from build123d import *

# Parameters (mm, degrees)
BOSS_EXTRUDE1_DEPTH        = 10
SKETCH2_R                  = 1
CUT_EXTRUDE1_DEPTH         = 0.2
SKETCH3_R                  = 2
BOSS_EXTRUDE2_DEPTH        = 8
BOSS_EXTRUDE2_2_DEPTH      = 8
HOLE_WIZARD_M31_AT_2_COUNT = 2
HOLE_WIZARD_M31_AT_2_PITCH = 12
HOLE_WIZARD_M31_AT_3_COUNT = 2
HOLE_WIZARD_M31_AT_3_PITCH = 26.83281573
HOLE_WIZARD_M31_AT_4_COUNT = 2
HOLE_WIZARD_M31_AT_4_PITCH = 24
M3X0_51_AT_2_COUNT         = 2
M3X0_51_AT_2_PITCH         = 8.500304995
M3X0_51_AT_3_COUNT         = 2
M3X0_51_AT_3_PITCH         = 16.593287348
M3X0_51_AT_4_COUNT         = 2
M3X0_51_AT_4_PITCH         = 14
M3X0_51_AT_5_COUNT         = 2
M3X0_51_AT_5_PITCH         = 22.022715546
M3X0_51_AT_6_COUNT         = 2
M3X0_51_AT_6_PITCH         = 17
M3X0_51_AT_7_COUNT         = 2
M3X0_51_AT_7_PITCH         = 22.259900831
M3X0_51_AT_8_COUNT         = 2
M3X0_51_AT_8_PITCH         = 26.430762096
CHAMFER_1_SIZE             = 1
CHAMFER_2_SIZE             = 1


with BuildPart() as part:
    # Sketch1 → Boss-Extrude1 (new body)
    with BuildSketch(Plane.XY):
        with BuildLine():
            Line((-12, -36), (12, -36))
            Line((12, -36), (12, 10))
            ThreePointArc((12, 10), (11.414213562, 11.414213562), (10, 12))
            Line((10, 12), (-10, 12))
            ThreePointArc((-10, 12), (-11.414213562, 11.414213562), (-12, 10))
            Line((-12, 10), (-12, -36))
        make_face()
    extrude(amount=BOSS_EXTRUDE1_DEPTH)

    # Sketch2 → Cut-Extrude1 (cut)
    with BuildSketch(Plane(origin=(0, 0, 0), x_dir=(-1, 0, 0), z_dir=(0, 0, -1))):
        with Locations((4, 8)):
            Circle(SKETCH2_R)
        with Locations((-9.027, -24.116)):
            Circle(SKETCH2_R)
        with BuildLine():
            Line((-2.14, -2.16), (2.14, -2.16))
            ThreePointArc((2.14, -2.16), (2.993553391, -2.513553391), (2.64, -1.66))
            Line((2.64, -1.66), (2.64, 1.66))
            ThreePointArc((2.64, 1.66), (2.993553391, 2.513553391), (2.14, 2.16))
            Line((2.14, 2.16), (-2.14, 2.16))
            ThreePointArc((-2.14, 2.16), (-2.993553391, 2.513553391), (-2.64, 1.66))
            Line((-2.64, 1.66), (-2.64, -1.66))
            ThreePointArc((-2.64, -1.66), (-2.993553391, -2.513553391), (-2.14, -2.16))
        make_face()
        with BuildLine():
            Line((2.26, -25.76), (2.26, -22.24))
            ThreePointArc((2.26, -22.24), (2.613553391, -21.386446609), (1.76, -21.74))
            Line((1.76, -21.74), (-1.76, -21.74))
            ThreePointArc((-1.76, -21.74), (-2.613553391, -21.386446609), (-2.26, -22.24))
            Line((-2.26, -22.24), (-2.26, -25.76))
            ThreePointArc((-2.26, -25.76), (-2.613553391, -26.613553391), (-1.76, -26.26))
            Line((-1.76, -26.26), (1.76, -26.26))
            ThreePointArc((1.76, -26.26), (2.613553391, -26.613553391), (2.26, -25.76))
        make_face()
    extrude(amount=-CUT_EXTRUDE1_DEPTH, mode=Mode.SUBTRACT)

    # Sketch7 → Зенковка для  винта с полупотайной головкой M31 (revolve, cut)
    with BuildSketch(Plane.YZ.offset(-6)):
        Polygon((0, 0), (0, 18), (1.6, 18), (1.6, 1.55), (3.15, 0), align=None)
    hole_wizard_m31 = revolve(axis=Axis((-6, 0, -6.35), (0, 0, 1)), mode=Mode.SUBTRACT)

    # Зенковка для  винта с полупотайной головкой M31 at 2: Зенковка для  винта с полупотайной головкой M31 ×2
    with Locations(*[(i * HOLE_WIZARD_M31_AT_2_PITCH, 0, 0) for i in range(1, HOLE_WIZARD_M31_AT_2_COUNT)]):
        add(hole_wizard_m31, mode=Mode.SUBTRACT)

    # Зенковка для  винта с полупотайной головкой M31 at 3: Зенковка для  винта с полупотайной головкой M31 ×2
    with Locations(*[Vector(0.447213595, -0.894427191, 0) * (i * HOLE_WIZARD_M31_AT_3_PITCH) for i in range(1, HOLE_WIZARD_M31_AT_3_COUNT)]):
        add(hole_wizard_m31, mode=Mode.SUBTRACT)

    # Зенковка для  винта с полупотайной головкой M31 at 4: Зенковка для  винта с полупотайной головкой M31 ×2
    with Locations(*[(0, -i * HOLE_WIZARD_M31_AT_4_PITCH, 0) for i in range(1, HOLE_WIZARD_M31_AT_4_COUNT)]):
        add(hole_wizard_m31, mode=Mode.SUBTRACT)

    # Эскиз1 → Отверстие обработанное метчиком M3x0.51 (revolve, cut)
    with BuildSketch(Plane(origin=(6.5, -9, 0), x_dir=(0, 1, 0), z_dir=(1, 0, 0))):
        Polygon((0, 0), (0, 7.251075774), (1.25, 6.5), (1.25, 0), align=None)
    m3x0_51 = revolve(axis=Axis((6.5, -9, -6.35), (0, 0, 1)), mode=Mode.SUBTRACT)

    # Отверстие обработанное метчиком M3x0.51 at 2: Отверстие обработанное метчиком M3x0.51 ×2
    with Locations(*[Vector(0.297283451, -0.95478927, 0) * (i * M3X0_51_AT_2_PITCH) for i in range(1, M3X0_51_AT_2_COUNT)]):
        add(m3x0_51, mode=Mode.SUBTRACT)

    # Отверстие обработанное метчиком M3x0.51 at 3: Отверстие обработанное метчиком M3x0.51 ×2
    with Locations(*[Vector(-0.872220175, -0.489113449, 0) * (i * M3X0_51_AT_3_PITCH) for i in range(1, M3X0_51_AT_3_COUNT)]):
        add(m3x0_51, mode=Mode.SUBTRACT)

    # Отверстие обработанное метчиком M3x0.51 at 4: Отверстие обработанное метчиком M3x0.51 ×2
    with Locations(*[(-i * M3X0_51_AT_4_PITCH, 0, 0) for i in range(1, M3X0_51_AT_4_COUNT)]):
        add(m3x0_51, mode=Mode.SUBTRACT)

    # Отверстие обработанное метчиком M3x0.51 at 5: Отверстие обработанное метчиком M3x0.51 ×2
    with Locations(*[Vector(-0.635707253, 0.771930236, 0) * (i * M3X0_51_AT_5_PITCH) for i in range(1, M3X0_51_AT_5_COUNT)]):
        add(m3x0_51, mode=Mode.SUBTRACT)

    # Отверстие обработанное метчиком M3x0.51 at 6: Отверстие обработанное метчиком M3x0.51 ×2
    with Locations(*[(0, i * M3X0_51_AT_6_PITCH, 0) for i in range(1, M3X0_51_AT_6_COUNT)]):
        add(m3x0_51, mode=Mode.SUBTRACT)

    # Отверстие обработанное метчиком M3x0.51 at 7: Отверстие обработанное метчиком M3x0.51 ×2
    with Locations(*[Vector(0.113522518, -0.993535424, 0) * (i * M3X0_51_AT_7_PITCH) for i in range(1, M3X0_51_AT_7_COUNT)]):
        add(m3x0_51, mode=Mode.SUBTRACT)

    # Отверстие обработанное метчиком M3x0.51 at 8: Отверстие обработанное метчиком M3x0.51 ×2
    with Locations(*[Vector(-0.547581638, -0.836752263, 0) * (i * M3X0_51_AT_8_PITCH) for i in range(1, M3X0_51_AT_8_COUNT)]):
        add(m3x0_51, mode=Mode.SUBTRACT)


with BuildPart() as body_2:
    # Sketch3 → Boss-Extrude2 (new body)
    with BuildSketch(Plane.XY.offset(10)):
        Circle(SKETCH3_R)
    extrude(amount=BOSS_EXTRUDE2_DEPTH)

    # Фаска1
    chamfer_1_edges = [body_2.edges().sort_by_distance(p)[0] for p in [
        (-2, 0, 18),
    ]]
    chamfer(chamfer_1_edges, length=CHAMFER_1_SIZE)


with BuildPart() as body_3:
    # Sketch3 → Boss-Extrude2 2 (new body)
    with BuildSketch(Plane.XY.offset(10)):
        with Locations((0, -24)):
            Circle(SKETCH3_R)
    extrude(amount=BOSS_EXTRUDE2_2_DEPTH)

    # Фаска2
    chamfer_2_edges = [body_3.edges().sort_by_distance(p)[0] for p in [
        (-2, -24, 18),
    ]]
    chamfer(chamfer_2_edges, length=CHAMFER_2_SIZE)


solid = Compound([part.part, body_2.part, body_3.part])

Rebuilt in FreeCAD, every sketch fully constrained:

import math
import FreeCAD as App
import Part
import Sketcher

V = App.Vector
Q = App.Units.Quantity


def edges_at(feature, points):
    """Names of the edges that pass closest to the given points."""
    edges = feature.Shape.Edges
    near = lambda p: min(range(len(edges)), key=lambda i: edges[i].distToShape(Part.Vertex(*p))[0])
    return sorted({f"Edge{near(p) + 1}" for p in points})

doc = App.newDocument("Part")
params = doc.addObject("Spreadsheet::Sheet", "Params")
for row, (alias, value) in enumerate([
    ("sketch1_radius", "2 mm"),
    ("sketch1_width", "24 mm"),
    ("sketch1_height", "46 mm"),
    ("pad1_length", "10 mm"),
    ("sketch2_diameter", "2 mm"),
    ("sketch2_radius", "0.5 mm"),
    ("sketch2_width", "4.28 mm"),
    ("sketch2_width2", "3.52 mm"),
    ("sketch2_height", "3.32 mm"),
    ("pocket1_length", "0.2 mm"),
    ("sketch3_height", "18 mm"),
    ("sketch3_width", "1.6 mm"),
    ("sketch3_width2", "3.15 mm"),
    ("groove_angle", "360 deg"),
    ("linearpattern_pitch", "12 mm"),
    ("linearpattern2_pitch", "26.832816 mm"),
    ("linearpattern3_pitch", "24 mm"),
    ("sketch4_height", "6.5 mm"),
    ("sketch4_width", "1.25 mm"),
    ("groove2_angle", "360 deg"),
    ("linearpattern4_pitch", "8.500305 mm"),
    ("linearpattern5_pitch", "16.593287 mm"),
    ("linearpattern6_pitch", "14 mm"),
    ("linearpattern7_pitch", "22.022716 mm"),
    ("linearpattern8_pitch", "17 mm"),
    ("linearpattern9_pitch", "22.259901 mm"),
    ("linearpattern10_pitch", "26.430762 mm"),
    ("sketch5_diameter", "4 mm"),
    ("pad2_length", "8 mm"),
    ("chamfer_size", "1 mm"),
    ("sketch6_diameter", "4 mm"),
    ("pad3_length", "8 mm"),
    ("chamfer2_size", "1 mm"),
], start=1):
    params.set(f"A{row}", alias)
    params.set(f"B{row}", "=" + value)
    params.setAlias(f"B{row}", alias)

body = doc.addObject("PartDesign::Body", "Body")

sketch1 = body.newObject("Sketcher::SketchObject", "Sketch")
sketch1.AttachmentSupport = (doc.getObject("XY_Plane"), [""])
sketch1.MapMode = "FlatFace"
sketch1.addGeometry(Part.LineSegment(V(-12, -36, 0), V(12, -36, 0)), False)
sketch1.addGeometry(Part.LineSegment(V(12, -36, 0), V(12, 10, 0)), False)
sketch1.addGeometry(Part.ArcOfCircle(Part.Circle(V(10, 10, 0), V(0, 0, 1), 2), math.radians(0), math.radians(90)), False)
sketch1.addGeometry(Part.LineSegment(V(10, 12, 0), V(-10, 12, 0)), False)
sketch1.addGeometry(Part.ArcOfCircle(Part.Circle(V(-10, 10, 0), V(0, 0, 1), 2), math.radians(90), math.radians(180)), False)
sketch1.addGeometry(Part.LineSegment(V(-12, 10, 0), V(-12, -36, 0)), False)
sketch1.addConstraint(Sketcher.Constraint("Coincident", 0, 2, 1, 1))
sketch1.addConstraint(Sketcher.Constraint("Tangent", 1, 2, 2, 1))
sketch1.addConstraint(Sketcher.Constraint("Tangent", 2, 2, 3, 1))
sketch1.addConstraint(Sketcher.Constraint("Tangent", 3, 2, 4, 1))
sketch1.addConstraint(Sketcher.Constraint("Tangent", 4, 2, 5, 1))
sketch1.addConstraint(Sketcher.Constraint("Coincident", 5, 2, 0, 1))
sketch1.addConstraint(Sketcher.Constraint("Horizontal", 0))
sketch1.addConstraint(Sketcher.Constraint("Vertical", 1))
sketch1.addConstraint(Sketcher.Constraint("Horizontal", 3))
sketch1.addConstraint(Sketcher.Constraint("Vertical", 5))
sketch1.addConstraint(Sketcher.Constraint("Equal", 2, 4))
sketch1.addConstraint(Sketcher.Constraint("Radius", 2, 2.0))
sketch1.addConstraint(Sketcher.Constraint("DistanceX", 0, 1, 0, 2, 24.0))
sketch1.addConstraint(Sketcher.Constraint("DistanceY", 1, 1, 1, 2, 46.0))
sketch1.addConstraint(Sketcher.Constraint("DistanceX", -1, 1, 2, 3, 10.0))
sketch1.addConstraint(Sketcher.Constraint("DistanceY", -1, 1, 2, 3, 10.0))
sketch1.setExpression("Constraints[11]", "Params.sketch1_radius")
sketch1.setExpression("Constraints[12]", "Params.sketch1_width")
sketch1.setExpression("Constraints[13]", "Params.sketch1_height")
pad1 = body.newObject("PartDesign::Pad", "Pad")
pad1.Profile = sketch1
pad1.setExpression("Length", "Params.pad1_length")

sketch2 = body.newObject("Sketcher::SketchObject", "Sketch001")
sketch2.AttachmentSupport = (doc.getObject("XY_Plane"), [""])
sketch2.MapMode = "FlatFace"
sketch2.addGeometry(Part.Circle(V(-4, 8, 0), V(0, 0, 1), 1), False)
sketch2.addGeometry(Part.Circle(V(9.027, -24.116, 0), V(0, 0, 1), 1), False)
sketch2.addGeometry(Part.LineSegment(V(2.14, -2.16, 0), V(-2.14, -2.16, 0)), False)
sketch2.addGeometry(Part.ArcOfCircle(Part.Circle(V(-2.64, -2.16, 0), V(0, 0, 1), 0.5), math.radians(90), math.radians(360)), False)
sketch2.addGeometry(Part.LineSegment(V(-2.64, -1.66, 0), V(-2.64, 1.66, 0)), False)
sketch2.addGeometry(Part.ArcOfCircle(Part.Circle(V(-2.64, 2.16, 0), V(0, 0, 1), 0.5), math.radians(0), math.radians(270)), False)
sketch2.addGeometry(Part.LineSegment(V(-2.14, 2.16, 0), V(2.14, 2.16, 0)), False)
sketch2.addGeometry(Part.ArcOfCircle(Part.Circle(V(2.64, 2.16, 0), V(0, 0, 1), 0.5), math.radians(-90), math.radians(180)), False)
sketch2.addGeometry(Part.LineSegment(V(2.64, 1.66, 0), V(2.64, -1.66, 0)), False)
sketch2.addGeometry(Part.ArcOfCircle(Part.Circle(V(2.64, -2.16, 0), V(0, 0, 1), 0.5), math.radians(180), math.radians(450)), False)
sketch2.addGeometry(Part.LineSegment(V(-2.26, -25.76, 0), V(-2.26, -22.24, 0)), False)
sketch2.addGeometry(Part.ArcOfCircle(Part.Circle(V(-2.26, -21.74, 0), V(0, 0, 1), 0.5), math.radians(0), math.radians(270)), False)
sketch2.addGeometry(Part.LineSegment(V(-1.76, -21.74, 0), V(1.76, -21.74, 0)), False)
sketch2.addGeometry(Part.ArcOfCircle(Part.Circle(V(2.26, -21.74, 0), V(0, 0, 1), 0.5), math.radians(-90), math.radians(180)), False)
sketch2.addGeometry(Part.LineSegment(V(2.26, -22.24, 0), V(2.26, -25.76, 0)), False)
sketch2.addGeometry(Part.ArcOfCircle(Part.Circle(V(2.26, -26.26, 0), V(0, 0, 1), 0.5), math.radians(180), math.radians(450)), False)
sketch2.addGeometry(Part.LineSegment(V(1.76, -26.26, 0), V(-1.76, -26.26, 0)), False)
sketch2.addGeometry(Part.ArcOfCircle(Part.Circle(V(-2.26, -26.26, 0), V(0, 0, 1), 0.5), math.radians(90), math.radians(360)), False)
sketch2.addConstraint(Sketcher.Constraint("Coincident", 2, 2, 3, 2))
sketch2.addConstraint(Sketcher.Constraint("Coincident", 3, 1, 4, 1))
sketch2.addConstraint(Sketcher.Constraint("Coincident", 4, 2, 5, 2))
sketch2.addConstraint(Sketcher.Constraint("Coincident", 5, 1, 6, 1))
sketch2.addConstraint(Sketcher.Constraint("Coincident", 6, 2, 7, 2))
sketch2.addConstraint(Sketcher.Constraint("Coincident", 7, 1, 8, 1))
sketch2.addConstraint(Sketcher.Constraint("Coincident", 8, 2, 9, 2))
sketch2.addConstraint(Sketcher.Constraint("Coincident", 9, 1, 2, 1))
sketch2.addConstraint(Sketcher.Constraint("Coincident", 10, 2, 11, 2))
sketch2.addConstraint(Sketcher.Constraint("Coincident", 11, 1, 12, 1))
sketch2.addConstraint(Sketcher.Constraint("Coincident", 12, 2, 13, 2))
sketch2.addConstraint(Sketcher.Constraint("Coincident", 13, 1, 14, 1))
sketch2.addConstraint(Sketcher.Constraint("Coincident", 14, 2, 15, 2))
sketch2.addConstraint(Sketcher.Constraint("Coincident", 15, 1, 16, 1))
sketch2.addConstraint(Sketcher.Constraint("Coincident", 16, 2, 17, 2))
sketch2.addConstraint(Sketcher.Constraint("Coincident", 17, 1, 10, 1))
sketch2.addConstraint(Sketcher.Constraint("Horizontal", 2))
sketch2.addConstraint(Sketcher.Constraint("Vertical", 4))
sketch2.addConstraint(Sketcher.Constraint("Horizontal", 6))
sketch2.addConstraint(Sketcher.Constraint("Vertical", 8))
sketch2.addConstraint(Sketcher.Constraint("Vertical", 10))
sketch2.addConstraint(Sketcher.Constraint("Horizontal", 12))
sketch2.addConstraint(Sketcher.Constraint("Vertical", 14))
sketch2.addConstraint(Sketcher.Constraint("Horizontal", 16))
sketch2.addConstraint(Sketcher.Constraint("Equal", 0, 1))
sketch2.addConstraint(Sketcher.Constraint("Equal", 3, 5))
sketch2.addConstraint(Sketcher.Constraint("Equal", 5, 7))
sketch2.addConstraint(Sketcher.Constraint("Equal", 7, 9))
sketch2.addConstraint(Sketcher.Constraint("Equal", 9, 11))
sketch2.addConstraint(Sketcher.Constraint("Equal", 11, 13))
sketch2.addConstraint(Sketcher.Constraint("Equal", 13, 15))
sketch2.addConstraint(Sketcher.Constraint("Equal", 15, 17))
sketch2.addConstraint(Sketcher.Constraint("Symmetric", 3, 3, 7, 3, -1, 1))
sketch2.addConstraint(Sketcher.Constraint("Symmetric", 5, 3, 9, 3, -1, 1))
sketch2.addConstraint(Sketcher.Constraint("Symmetric", 5, 3, 7, 3, -2))
sketch2.addConstraint(Sketcher.Constraint("Symmetric", 11, 3, 13, 3, -2))
sketch2.addConstraint(Sketcher.Constraint("Symmetric", 15, 3, 17, 3, -2))
sketch2.addConstraint(Sketcher.Constraint("Horizontal", 9, 3, 2, 2))
sketch2.addConstraint(Sketcher.Constraint("Horizontal", 7, 3, 5, 1))
sketch2.addConstraint(Sketcher.Constraint("Horizontal", 13, 3, 11, 1))
sketch2.addConstraint(Sketcher.Constraint("Horizontal", 17, 3, 15, 1))
sketch2.addConstraint(Sketcher.Constraint("Vertical", 13, 3, 15, 3))
sketch2.addConstraint(Sketcher.Constraint("Vertical", 5, 3, 3, 1))
sketch2.addConstraint(Sketcher.Constraint("Vertical", 9, 3, 7, 1))
sketch2.addConstraint(Sketcher.Constraint("Vertical", 17, 3, 10, 2))
sketch2.addConstraint(Sketcher.Constraint("Vertical", 15, 3, 13, 1))
sketch2.addConstraint(Sketcher.Constraint("Equal", 16, 10))
sketch2.addConstraint(Sketcher.Constraint("Diameter", 0, 2.0))
sketch2.addConstraint(Sketcher.Constraint("Radius", 3, 0.5))
sketch2.addConstraint(Sketcher.Constraint("DistanceX", 0, 3, -1, 1, 4.0))
sketch2.addConstraint(Sketcher.Constraint("DistanceY", -1, 1, 0, 3, 8.0))
sketch2.addConstraint(Sketcher.Constraint("DistanceX", 2, 2, 2, 1, 4.28))
sketch2.addConstraint(Sketcher.Constraint("DistanceX", 12, 1, 12, 2, 3.52))
sketch2.addConstraint(Sketcher.Constraint("DistanceY", 4, 1, 4, 2, 3.32))
sketch2.addConstraint(Sketcher.Constraint("DistanceY", 11, 3, 5, 3, 23.9))
sketch2.addConstraint(Sketcher.Constraint("DistanceX", -1, 1, 1, 3, 9.027))
sketch2.addConstraint(Sketcher.Constraint("DistanceY", 1, 3, -1, 1, 24.116))
sketch2.setExpression("Constraints[47]", "Params.sketch2_diameter")
sketch2.setExpression("Constraints[48]", "Params.sketch2_radius")
sketch2.setExpression("Constraints[51]", "Params.sketch2_width")
sketch2.setExpression("Constraints[52]", "Params.sketch2_width2")
sketch2.setExpression("Constraints[53]", "Params.sketch2_height")
pocket1 = body.newObject("PartDesign::Pocket", "Pocket")
pocket1.Profile = sketch2
pocket1.setExpression("Length", "Params.pocket1_length")
pocket1.Reversed = True

sketch3 = body.newObject("Sketcher::SketchObject", "Sketch002")
sketch3.AttachmentSupport = (doc.getObject("YZ_Plane"), [""])
sketch3.MapMode = "FlatFace"
sketch3.AttachmentOffset = App.Placement(V(0, 0, -6), App.Rotation())
sketch3.addGeometry(Part.LineSegment(V(0, 18, 0), V(0, 0, 0)), False)
sketch3.addGeometry(Part.LineSegment(V(0, 0, 0), V(3.15, 0, 0)), False)
sketch3.addGeometry(Part.LineSegment(V(3.15, 0, 0), V(1.6, 1.55, 0)), False)
sketch3.addGeometry(Part.LineSegment(V(1.6, 1.55, 0), V(1.6, 18, 0)), False)
sketch3.addGeometry(Part.LineSegment(V(1.6, 18, 0), V(0, 18, 0)), False)
sketch3.addConstraint(Sketcher.Constraint("Coincident", 0, 2, 1, 1))
sketch3.addConstraint(Sketcher.Constraint("Coincident", 1, 2, 2, 1))
sketch3.addConstraint(Sketcher.Constraint("Coincident", 2, 2, 3, 1))
sketch3.addConstraint(Sketcher.Constraint("Coincident", 3, 2, 4, 1))
sketch3.addConstraint(Sketcher.Constraint("Coincident", 4, 2, 0, 1))
sketch3.addConstraint(Sketcher.Constraint("Vertical", 0))
sketch3.addConstraint(Sketcher.Constraint("Horizontal", 1))
sketch3.addConstraint(Sketcher.Constraint("Vertical", 3))
sketch3.addConstraint(Sketcher.Constraint("Horizontal", 4))
sketch3.addConstraint(Sketcher.Constraint("Coincident", 0, 2, -1, 1))
sketch3.addConstraint(Sketcher.Constraint("DistanceY", 0, 2, 0, 1, 18.0))
sketch3.addConstraint(Sketcher.Constraint("Angle", 2, Q("135 deg")))
sketch3.addConstraint(Sketcher.Constraint("DistanceX", 4, 2, 4, 1, 1.6))
sketch3.addConstraint(Sketcher.Constraint("DistanceX", 1, 1, 1, 2, 3.15))
sketch3.setExpression("Constraints[10]", "Params.sketch3_height")
sketch3.setExpression("Constraints[12]", "Params.sketch3_width")
sketch3.setExpression("Constraints[13]", "Params.sketch3_width2")
groove = body.newObject("PartDesign::Groove", "Groove")
groove.Profile = sketch3
groove.ReferenceAxis = (sketch3, ["V_Axis"])
groove.setExpression("Angle", "Params.groove_angle")
doc.recompute()

linearpattern = body.newObject("PartDesign::LinearPattern", "LinearPattern")
linearpattern.Originals = [groove]
linearpattern.Direction = (doc.getObject("X_Axis"), [""])
linearpattern.Mode = "offset"
linearpattern.setExpression("Offset", "Params.linearpattern_pitch")
linearpattern.Occurrences = 2
body.Tip = linearpattern
doc.recompute()

datumline = body.newObject("PartDesign::Line", "DatumLine")
datumline.Placement = App.Placement(V(0, 0, 0), App.Rotation(V(0, 0, 1), V(0.447213595, -0.894427191, 0)))
linearpattern2 = body.newObject("PartDesign::LinearPattern", "LinearPattern001")
linearpattern2.Originals = [groove]
linearpattern2.Direction = (datumline, [""])
linearpattern2.Mode = "offset"
linearpattern2.setExpression("Offset", "Params.linearpattern2_pitch")
linearpattern2.Occurrences = 2
body.Tip = linearpattern2
doc.recompute()

linearpattern3 = body.newObject("PartDesign::LinearPattern", "LinearPattern002")
linearpattern3.Originals = [groove]
linearpattern3.Direction = (doc.getObject("Y_Axis"), [""])
linearpattern3.Mode = "offset"
linearpattern3.setExpression("Offset", "Params.linearpattern3_pitch")
linearpattern3.Occurrences = 2
linearpattern3.Reversed = True
body.Tip = linearpattern3

sketch4 = body.newObject("Sketcher::SketchObject", "Sketch003")
sketch4.AttachmentSupport = (doc.getObject("YZ_Plane"), [""])
sketch4.MapMode = "FlatFace"
sketch4.AttachmentOffset = App.Placement(V(0, 0, 6.5), App.Rotation())
sketch4.addGeometry(Part.LineSegment(V(-9, 7.251076, 0), V(-9, 0, 0)), False)
sketch4.addGeometry(Part.LineSegment(V(-9, 0, 0), V(-7.75, 0, 0)), False)
sketch4.addGeometry(Part.LineSegment(V(-7.75, 0, 0), V(-7.75, 6.5, 0)), False)
sketch4.addGeometry(Part.LineSegment(V(-7.75, 6.5, 0), V(-9, 7.251076, 0)), False)
sketch4.addGeometry(Part.LineSegment(V(-9, 0, 0), V(-9, 7.251076, 0)), True)
sketch4.addConstraint(Sketcher.Constraint("Coincident", 0, 2, 1, 1))
sketch4.addConstraint(Sketcher.Constraint("Coincident", 1, 2, 2, 1))
sketch4.addConstraint(Sketcher.Constraint("Coincident", 2, 2, 3, 1))
sketch4.addConstraint(Sketcher.Constraint("Coincident", 3, 2, 0, 1))
sketch4.addConstraint(Sketcher.Constraint("Vertical", 0))
sketch4.addConstraint(Sketcher.Constraint("Horizontal", 1))
sketch4.addConstraint(Sketcher.Constraint("Vertical", 2))
sketch4.addConstraint(Sketcher.Constraint("Vertical", 4))
sketch4.addConstraint(Sketcher.Constraint("Coincident", 4, 1, 0, 2))
sketch4.addConstraint(Sketcher.Constraint("PointOnObject", 0, 2, -1))
sketch4.addConstraint(Sketcher.Constraint("Equal", 0, 4))
sketch4.addConstraint(Sketcher.Constraint("Angle", 3, Q("149 deg")))
sketch4.addConstraint(Sketcher.Constraint("DistanceY", 2, 1, 2, 2, 6.5))
sketch4.addConstraint(Sketcher.Constraint("DistanceX", 0, 2, -1, 1, 9.0))
sketch4.addConstraint(Sketcher.Constraint("DistanceX", 1, 1, 1, 2, 1.25))
sketch4.setExpression("Constraints[12]", "Params.sketch4_height")
sketch4.setExpression("Constraints[14]", "Params.sketch4_width")
groove2 = body.newObject("PartDesign::Groove", "Groove001")
groove2.Profile = sketch4
groove2.ReferenceAxis = (sketch4, ["Axis0"])
groove2.setExpression("Angle", "Params.groove2_angle")
doc.recompute()

datumline2 = body.newObject("PartDesign::Line", "DatumLine001")
datumline2.Placement = App.Placement(V(0, 0, 0), App.Rotation(V(0, 0, 1), V(0.297283451, -0.95478927, 0)))
linearpattern4 = body.newObject("PartDesign::LinearPattern", "LinearPattern003")
linearpattern4.Originals = [groove2]
linearpattern4.Direction = (datumline2, [""])
linearpattern4.Mode = "offset"
linearpattern4.setExpression("Offset", "Params.linearpattern4_pitch")
linearpattern4.Occurrences = 2
body.Tip = linearpattern4
doc.recompute()

datumline3 = body.newObject("PartDesign::Line", "DatumLine002")
datumline3.Placement = App.Placement(V(0, 0, 0), App.Rotation(V(0, 0, 1), V(-0.872220175, -0.489113449, 0)))
linearpattern5 = body.newObject("PartDesign::LinearPattern", "LinearPattern004")
linearpattern5.Originals = [groove2]
linearpattern5.Direction = (datumline3, [""])
linearpattern5.Mode = "offset"
linearpattern5.setExpression("Offset", "Params.linearpattern5_pitch")
linearpattern5.Occurrences = 2
body.Tip = linearpattern5
doc.recompute()

linearpattern6 = body.newObject("PartDesign::LinearPattern", "LinearPattern005")
linearpattern6.Originals = [groove2]
linearpattern6.Direction = (doc.getObject("X_Axis"), [""])
linearpattern6.Mode = "offset"
linearpattern6.setExpression("Offset", "Params.linearpattern6_pitch")
linearpattern6.Occurrences = 2
linearpattern6.Reversed = True
body.Tip = linearpattern6
doc.recompute()

datumline4 = body.newObject("PartDesign::Line", "DatumLine003")
datumline4.Placement = App.Placement(V(0, 0, 0), App.Rotation(V(0, 0, 1), V(-0.635707253, 0.771930236, 0)))
linearpattern7 = body.newObject("PartDesign::LinearPattern", "LinearPattern006")
linearpattern7.Originals = [groove2]
linearpattern7.Direction = (datumline4, [""])
linearpattern7.Mode = "offset"
linearpattern7.setExpression("Offset", "Params.linearpattern7_pitch")
linearpattern7.Occurrences = 2
body.Tip = linearpattern7
doc.recompute()

linearpattern8 = body.newObject("PartDesign::LinearPattern", "LinearPattern007")
linearpattern8.Originals = [groove2]
linearpattern8.Direction = (doc.getObject("Y_Axis"), [""])
linearpattern8.Mode = "offset"
linearpattern8.setExpression("Offset", "Params.linearpattern8_pitch")
linearpattern8.Occurrences = 2
body.Tip = linearpattern8
doc.recompute()

datumline5 = body.newObject("PartDesign::Line", "DatumLine004")
datumline5.Placement = App.Placement(V(0, 0, 0), App.Rotation(V(0, 0, 1), V(0.113522518, -0.993535424, 0)))
linearpattern9 = body.newObject("PartDesign::LinearPattern", "LinearPattern008")
linearpattern9.Originals = [groove2]
linearpattern9.Direction = (datumline5, [""])
linearpattern9.Mode = "offset"
linearpattern9.setExpression("Offset", "Params.linearpattern9_pitch")
linearpattern9.Occurrences = 2
body.Tip = linearpattern9
doc.recompute()

datumline6 = body.newObject("PartDesign::Line", "DatumLine005")
datumline6.Placement = App.Placement(V(0, 0, 0), App.Rotation(V(0, 0, 1), V(-0.547581638, -0.836752263, 0)))
linearpattern10 = body.newObject("PartDesign::LinearPattern", "LinearPattern009")
linearpattern10.Originals = [groove2]
linearpattern10.Direction = (datumline6, [""])
linearpattern10.Mode = "offset"
linearpattern10.setExpression("Offset", "Params.linearpattern10_pitch")
linearpattern10.Occurrences = 2
body.Tip = linearpattern10
body2 = doc.addObject("PartDesign::Body", "Body001")

sketch5 = body2.newObject("Sketcher::SketchObject", "Sketch004")
sketch5.AttachmentSupport = (doc.getObject("XY_Plane001"), [""])
sketch5.MapMode = "FlatFace"
sketch5.AttachmentOffset = App.Placement(V(0, 0, 10), App.Rotation())
sketch5.addGeometry(Part.Circle(V(0, 0, 0), V(0, 0, 1), 2), False)
sketch5.addConstraint(Sketcher.Constraint("Coincident", 0, 3, -1, 1))
sketch5.addConstraint(Sketcher.Constraint("Diameter", 0, 4.0))
sketch5.setExpression("Constraints[1]", "Params.sketch5_diameter")
pad2 = body2.newObject("PartDesign::Pad", "Pad001")
pad2.Profile = sketch5
pad2.setExpression("Length", "Params.pad2_length")
doc.recompute()

chamfer = body2.newObject("PartDesign::Chamfer", "Chamfer")
chamfer.Base = (pad2, edges_at(pad2, [(-2, 0, 18)]))
chamfer.setExpression("Size", "Params.chamfer_size")
body3 = doc.addObject("PartDesign::Body", "Body002")

sketch6 = body3.newObject("Sketcher::SketchObject", "Sketch005")
sketch6.AttachmentSupport = (doc.getObject("XY_Plane002"), [""])
sketch6.MapMode = "FlatFace"
sketch6.AttachmentOffset = App.Placement(V(0, 0, 10), App.Rotation())
sketch6.addGeometry(Part.Circle(V(0, -24, 0), V(0, 0, 1), 2), False)
sketch6.addConstraint(Sketcher.Constraint("PointOnObject", 0, 3, -2))
sketch6.addConstraint(Sketcher.Constraint("Diameter", 0, 4.0))
sketch6.addConstraint(Sketcher.Constraint("DistanceY", 0, 3, -1, 1, 24.0))
sketch6.setExpression("Constraints[1]", "Params.sketch6_diameter")
pad3 = body3.newObject("PartDesign::Pad", "Pad002")
pad3.Profile = sketch6
pad3.setExpression("Length", "Params.pad3_length")
doc.recompute()

chamfer2 = body3.newObject("PartDesign::Chamfer", "Chamfer001")
chamfer2.Base = (pad3, edges_at(pad3, [(-2, -24, 18)]))
chamfer2.setExpression("Size", "Params.chamfer2_size")

doc.recompute()
